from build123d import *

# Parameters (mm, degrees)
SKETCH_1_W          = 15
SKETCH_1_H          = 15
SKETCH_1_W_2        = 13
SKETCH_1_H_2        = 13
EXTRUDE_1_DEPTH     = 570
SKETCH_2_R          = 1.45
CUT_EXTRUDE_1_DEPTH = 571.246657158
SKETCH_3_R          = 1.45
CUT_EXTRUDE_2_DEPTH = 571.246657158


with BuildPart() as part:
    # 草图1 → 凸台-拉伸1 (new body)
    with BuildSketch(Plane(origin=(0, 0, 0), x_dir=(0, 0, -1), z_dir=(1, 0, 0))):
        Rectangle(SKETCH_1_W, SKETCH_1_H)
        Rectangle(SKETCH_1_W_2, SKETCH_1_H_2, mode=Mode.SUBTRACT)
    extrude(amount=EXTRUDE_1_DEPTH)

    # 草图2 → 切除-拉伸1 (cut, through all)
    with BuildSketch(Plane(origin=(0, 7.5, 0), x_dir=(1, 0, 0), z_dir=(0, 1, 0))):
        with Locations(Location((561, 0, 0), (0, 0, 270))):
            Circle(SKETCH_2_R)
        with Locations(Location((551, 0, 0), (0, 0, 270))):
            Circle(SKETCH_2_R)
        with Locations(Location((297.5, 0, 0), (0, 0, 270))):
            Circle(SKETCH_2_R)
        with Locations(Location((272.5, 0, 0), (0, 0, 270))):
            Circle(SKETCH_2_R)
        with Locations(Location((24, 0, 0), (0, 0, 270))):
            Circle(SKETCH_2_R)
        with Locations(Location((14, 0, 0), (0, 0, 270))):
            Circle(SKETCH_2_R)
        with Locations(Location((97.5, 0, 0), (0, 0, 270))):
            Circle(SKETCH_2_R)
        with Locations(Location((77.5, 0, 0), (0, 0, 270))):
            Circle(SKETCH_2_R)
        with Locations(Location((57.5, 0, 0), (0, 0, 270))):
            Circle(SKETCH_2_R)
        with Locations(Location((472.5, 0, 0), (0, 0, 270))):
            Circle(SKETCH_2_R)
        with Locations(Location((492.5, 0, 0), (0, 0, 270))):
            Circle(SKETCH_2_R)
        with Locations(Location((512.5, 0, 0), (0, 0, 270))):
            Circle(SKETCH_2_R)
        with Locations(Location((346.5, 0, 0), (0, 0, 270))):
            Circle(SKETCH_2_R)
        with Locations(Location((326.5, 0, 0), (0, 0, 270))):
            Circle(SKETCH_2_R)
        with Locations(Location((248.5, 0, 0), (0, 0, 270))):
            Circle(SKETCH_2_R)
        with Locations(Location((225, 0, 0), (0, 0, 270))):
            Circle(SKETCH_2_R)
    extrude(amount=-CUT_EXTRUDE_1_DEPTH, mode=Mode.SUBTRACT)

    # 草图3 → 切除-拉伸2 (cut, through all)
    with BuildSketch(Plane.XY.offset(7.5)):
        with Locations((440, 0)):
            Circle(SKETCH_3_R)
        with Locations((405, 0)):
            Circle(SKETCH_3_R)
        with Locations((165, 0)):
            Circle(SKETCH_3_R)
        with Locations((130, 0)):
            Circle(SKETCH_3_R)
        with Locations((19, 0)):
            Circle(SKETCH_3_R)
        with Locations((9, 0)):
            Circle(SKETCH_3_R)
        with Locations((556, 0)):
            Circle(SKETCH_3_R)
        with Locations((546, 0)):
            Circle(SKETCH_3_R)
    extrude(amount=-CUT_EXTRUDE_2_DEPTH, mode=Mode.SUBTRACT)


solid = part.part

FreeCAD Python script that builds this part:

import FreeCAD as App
import Part
import Sketcher
from FreeCAD import Vector

doc = App.newDocument("Part")
body = doc.addObject("PartDesign::Body", "Body")

# Sketch on YZ plane
sketch1 = body.newObject("Sketcher::SketchObject", "Sketch")
sketch1.AttachmentSupport = (doc.getObject("YZ_Plane"), [""])
sketch1.MapMode = "FlatFace"
sketch1.addGeometry([
    Part.LineSegment(Vector(8, 8, 0), Vector(-8, 8, 0)),  # 0
    Part.LineSegment(Vector(-8, 8, 0), Vector(-8, -8, 0)),  # 1
    Part.LineSegment(Vector(-8, -8, 0), Vector(8, -8, 0)),  # 2
    Part.LineSegment(Vector(8, -8, 0), Vector(8, 8, 0)),  # 3
    Part.LineSegment(Vector(-6, -6, 0), Vector(-6, 6, 0)),  # 4
    Part.LineSegment(Vector(-6, 6, 0), Vector(6, 6, 0)),  # 5
    Part.LineSegment(Vector(6, 6, 0), Vector(6, -6, 0)),  # 6
    Part.LineSegment(Vector(6, -6, 0), Vector(-6, -6, 0)),  # 7
], False)
sketch1.addConstraint([
    Sketcher.Constraint("Coincident", 0, 2, 1, 1),
    Sketcher.Constraint("Coincident", 1, 2, 2, 1),
    Sketcher.Constraint("Coincident", 2, 2, 3, 1),
    Sketcher.Constraint("Coincident", 3, 2, 0, 1),
    Sketcher.Constraint("Coincident", 4, 2, 5, 1),
    Sketcher.Constraint("Coincident", 5, 2, 6, 1),
    Sketcher.Constraint("Coincident", 6, 2, 7, 1),
    Sketcher.Constraint("Coincident", 7, 2, 4, 1),
    Sketcher.Constraint("Horizontal", 0),
    Sketcher.Constraint("Vertical", 1),
    Sketcher.Constraint("Horizontal", 2),
    Sketcher.Constraint("Vertical", 3),
    Sketcher.Constraint("Vertical", 4),
    Sketcher.Constraint("Horizontal", 5),
    Sketcher.Constraint("Vertical", 6),
    Sketcher.Constraint("Horizontal", 7),
    Sketcher.Constraint("Symmetric", 0, 2, 2, 2, -1, 1),
    Sketcher.Constraint("Symmetric", 4, 2, 6, 2, -1, 1),
    Sketcher.Constraint("Equal", 2, 1),
    Sketcher.Constraint("Equal", 7, 4),
    Sketcher.Constraint("DistanceX", 0, 2, 0, 1, 15.0),
    Sketcher.Constraint("DistanceX", 5, 1, 5, 2, 13.0),
])
pad1 = body.newObject("PartDesign::Pad", "Pad")
pad1.Profile = sketch1
pad1.Length = 570

# Sketch on XZ plane
sketch2 = body.newObject("Sketcher::SketchObject", "Sketch001")
sketch2.AttachmentSupport = (doc.getObject("XZ_Plane"), [""])
sketch2.MapMode = "FlatFace"
sketch2.AttachmentOffset = App.Placement(Vector(0, 0, -7.5), App.Rotation())
sketch2.addGeometry([
    Part.Circle(Vector(561, 0, 0), Vector(0, 0, 1), 1.4),  # 0
    Part.Circle(Vector(551, 0, 0), Vector(0, 0, 1), 1.4),  # 1
    Part.Circle(Vector(297.5, 0, 0), Vector(0, 0, 1), 1.4),  # 2
    Part.Circle(Vector(272.5, 0, 0), Vector(0, 0, 1), 1.4),  # 3
    Part.Circle(Vector(24, 0, 0), Vector(0, 0, 1), 1.4),  # 4
    Part.Circle(Vector(14, 0, 0), Vector(0, 0, 1), 1.4),  # 5
    Part.Circle(Vector(97.5, 0, 0), Vector(0, 0, 1), 1.4),  # 6
    Part.Circle(Vector(77.5, 0, 0), Vector(0, 0, 1), 1.4),  # 7
    Part.Circle(Vector(57.5, 0, 0), Vector(0, 0, 1), 1.4),  # 8
    Part.Circle(Vector(472.5, 0, 0), Vector(0, 0, 1), 1.4),  # 9
    Part.Circle(Vector(492.5, 0, 0), Vector(0, 0, 1), 1.4),  # 10
    Part.Circle(Vector(512.5, 0, 0), Vector(0, 0, 1), 1.4),  # 11
    Part.Circle(Vector(346.5, 0, 0), Vector(0, 0, 1), 1.4),  # 12
    Part.Circle(Vector(326.5, 0, 0), Vector(0, 0, 1), 1.4),  # 13
    Part.Circle(Vector(248.5, 0, 0), Vector(0, 0, 1), 1.4),  # 14
    Part.Circle(Vector(225, 0, 0), Vector(0, 0, 1), 1.4),  # 15
], False)
sketch2.addConstraint([
    Sketcher.Constraint("Equal", 0, 1),
    Sketcher.Constraint("Equal", 1, 2),
    Sketcher.Constraint("Equal", 2, 3),
    Sketcher.Constraint("Equal", 3, 4),
    Sketcher.Constraint("Equal", 4, 5),
    Sketcher.Constraint("Equal", 5, 6),
    Sketcher.Constraint("Equal", 6, 7),
    Sketcher.Constraint("Equal", 7, 8),
    Sketcher.Constraint("Equal", 8, 9),
    Sketcher.Constraint("Equal", 9, 10),
    Sketcher.Constraint("Equal", 10, 11),
    Sketcher.Constraint("Equal", 11, 12),
    Sketcher.Constraint("Equal", 12, 13),
    Sketcher.Constraint("Equal", 13, 14),
    Sketcher.Constraint("Equal", 14, 15),
    Sketcher.Constraint("PointOnObject", 0, 3, -1),
    Sketcher.Constraint("PointOnObject", 1, 3, -1),
    Sketcher.Constraint("PointOnObject", 2, 3, -1),
    Sketcher.Constraint("PointOnObject", 3, 3, -1),
    Sketcher.Constraint("PointOnObject", 4, 3, -1),
    Sketcher.Constraint("PointOnObject", 5, 3, -1),
    Sketcher.Constraint("PointOnObject", 6, 3, -1),
    Sketcher.Constraint("PointOnObject", 7, 3, -1),
    Sketcher.Constraint("PointOnObject", 8, 3, -1),
    Sketcher.Constraint("PointOnObject", 9, 3, -1),
    Sketcher.Constraint("PointOnObject", 10, 3, -1),
    Sketcher.Constraint("PointOnObject", 11, 3, -1),
    Sketcher.Constraint("PointOnObject", 12, 3, -1),
    Sketcher.Constraint("PointOnObject", 13, 3, -1),
    Sketcher.Constraint("PointOnObject", 14, 3, -1),
    Sketcher.Constraint("PointOnObject", 15, 3, -1),
    Sketcher.Constraint("Diameter", 0, 2.9),
    Sketcher.Constraint("DistanceX", -1, 1, 0, 3, 561.0),
    Sketcher.Constraint("DistanceX", -1, 1, 1, 3, 551.0),
    Sketcher.Constraint("DistanceX", -1, 1, 4, 3, 24.0),
    Sketcher.Constraint("DistanceX", -1, 1, 5, 3, 14.0),
    Sketcher.Constraint("DistanceX", -1, 1, 15, 3, 225.0),
    Sketcher.Constraint("DistanceX", 3, 3, 2, 3, 25.0),
    Sketcher.Constraint("DistanceX", 6, 3, 3, 3, 175.0),
    Sketcher.Constraint("DistanceX", 7, 3, 6, 3, 20.0),
    Sketcher.Constraint("DistanceX", 8, 3, 7, 3, 20.0),
    Sketcher.Constraint("DistanceX", 2, 3, 9, 3, 175.0),
    Sketcher.Constraint("DistanceX", 9, 3, 10, 3, 20.0),
    Sketcher.Constraint("DistanceX", 10, 3, 11, 3, 20.0),
    Sketcher.Constraint("DistanceX", 2, 3, 12, 3, 49.0),
    Sketcher.Constraint("DistanceX", 13, 3, 12, 3, 20.0),
    Sketcher.Constraint("DistanceX", 14, 3, 3, 3, 24.0),
    Sketcher.Constraint("DistanceX", -1, 1, 2, 3, 297.5),
])
pocket1 = body.newObject("PartDesign::Pocket", "Pocket")
pocket1.Profile = sketch2
pocket1.Type = "ThroughAll"
pocket1.Reversed = True

# Sketch on XY plane
sketch3 = body.newObject("Sketcher::SketchObject", "Sketch002")
sketch3.AttachmentSupport = (doc.getObject("XY_Plane"), [""])
sketch3.MapMode = "FlatFace"
sketch3.AttachmentOffset = App.Placement(Vector(0, 0, 7.5), App.Rotation())
sketch3.addGeometry([
    Part.Circle(Vector(440, 0, 0), Vector(0, 0, 1), 1.4),  # 0
    Part.Circle(Vector(405, 0, 0), Vector(0, 0, 1), 1.4),  # 1
    Part.Circle(Vector(165, 0, 0), Vector(0, 0, 1), 1.4),  # 2
    Part.Circle(Vector(130, 0, 0), Vector(0, 0, 1), 1.4),  # 3
    Part.Circle(Vector(19, 0, 0), Vector(0, 0, 1), 1.4),  # 4
    Part.Circle(Vector(9, 0, 0), Vector(0, 0, 1), 1.4),  # 5
    Part.Circle(Vector(556, 0, 0), Vector(0, 0, 1), 1.4),  # 6
    Part.Circle(Vector(546, 0, 0), Vector(0, 0, 1), 1.4),  # 7
], False)
sketch3.addConstraint([
    Sketcher.Constraint("Equal", 0, 1),
    Sketcher.Constraint("Equal", 1, 2),
    Sketcher.Constraint("Equal", 2, 3),
    Sketcher.Constraint("Equal", 3, 4),
    Sketcher.Constraint("Equal", 4, 5),
    Sketcher.Constraint("Equal", 5, 6),
    Sketcher.Constraint("Equal", 6, 7),
    Sketcher.Constraint("PointOnObject", 0, 3, -1),
    Sketcher.Constraint("PointOnObject", 1, 3, -1),
    Sketcher.Constraint("PointOnObject", 2, 3, -1),
    Sketcher.Constraint("PointOnObject", 3, 3, -1),
    Sketcher.Constraint("PointOnObject", 4, 3, -1),
    Sketcher.Constraint("PointOnObject", 5, 3, -1),
    Sketcher.Constraint("PointOnObject", 6, 3, -1),
    Sketcher.Constraint("PointOnObject", 7, 3, -1),
    Sketcher.Constraint("Diameter", 0, 2.9),
    Sketcher.Constraint("DistanceX", -1, 1, 0, 3, 440.0),
    Sketcher.Constraint("DistanceX", -1, 1, 1, 3, 405.0),
    Sketcher.Constraint("DistanceX", -1, 1, 2, 3, 165.0),
    Sketcher.Constraint("DistanceX", -1, 1, 3, 3, 130.0),
    Sketcher.Constraint("DistanceX", -1, 1, 4, 3, 19.0),
    Sketcher.Constraint("DistanceX", -1, 1, 5, 3, 9.0),
    Sketcher.Constraint("DistanceX", -1, 1, 6, 3, 556.0),
    Sketcher.Constraint("DistanceX", -1, 1, 7, 3, 546.0),
])
pocket2 = body.newObject("PartDesign::Pocket", "Pocket001")
pocket2.Profile = sketch3
pocket2.Type = "ThroughAll"

doc.recompute()
